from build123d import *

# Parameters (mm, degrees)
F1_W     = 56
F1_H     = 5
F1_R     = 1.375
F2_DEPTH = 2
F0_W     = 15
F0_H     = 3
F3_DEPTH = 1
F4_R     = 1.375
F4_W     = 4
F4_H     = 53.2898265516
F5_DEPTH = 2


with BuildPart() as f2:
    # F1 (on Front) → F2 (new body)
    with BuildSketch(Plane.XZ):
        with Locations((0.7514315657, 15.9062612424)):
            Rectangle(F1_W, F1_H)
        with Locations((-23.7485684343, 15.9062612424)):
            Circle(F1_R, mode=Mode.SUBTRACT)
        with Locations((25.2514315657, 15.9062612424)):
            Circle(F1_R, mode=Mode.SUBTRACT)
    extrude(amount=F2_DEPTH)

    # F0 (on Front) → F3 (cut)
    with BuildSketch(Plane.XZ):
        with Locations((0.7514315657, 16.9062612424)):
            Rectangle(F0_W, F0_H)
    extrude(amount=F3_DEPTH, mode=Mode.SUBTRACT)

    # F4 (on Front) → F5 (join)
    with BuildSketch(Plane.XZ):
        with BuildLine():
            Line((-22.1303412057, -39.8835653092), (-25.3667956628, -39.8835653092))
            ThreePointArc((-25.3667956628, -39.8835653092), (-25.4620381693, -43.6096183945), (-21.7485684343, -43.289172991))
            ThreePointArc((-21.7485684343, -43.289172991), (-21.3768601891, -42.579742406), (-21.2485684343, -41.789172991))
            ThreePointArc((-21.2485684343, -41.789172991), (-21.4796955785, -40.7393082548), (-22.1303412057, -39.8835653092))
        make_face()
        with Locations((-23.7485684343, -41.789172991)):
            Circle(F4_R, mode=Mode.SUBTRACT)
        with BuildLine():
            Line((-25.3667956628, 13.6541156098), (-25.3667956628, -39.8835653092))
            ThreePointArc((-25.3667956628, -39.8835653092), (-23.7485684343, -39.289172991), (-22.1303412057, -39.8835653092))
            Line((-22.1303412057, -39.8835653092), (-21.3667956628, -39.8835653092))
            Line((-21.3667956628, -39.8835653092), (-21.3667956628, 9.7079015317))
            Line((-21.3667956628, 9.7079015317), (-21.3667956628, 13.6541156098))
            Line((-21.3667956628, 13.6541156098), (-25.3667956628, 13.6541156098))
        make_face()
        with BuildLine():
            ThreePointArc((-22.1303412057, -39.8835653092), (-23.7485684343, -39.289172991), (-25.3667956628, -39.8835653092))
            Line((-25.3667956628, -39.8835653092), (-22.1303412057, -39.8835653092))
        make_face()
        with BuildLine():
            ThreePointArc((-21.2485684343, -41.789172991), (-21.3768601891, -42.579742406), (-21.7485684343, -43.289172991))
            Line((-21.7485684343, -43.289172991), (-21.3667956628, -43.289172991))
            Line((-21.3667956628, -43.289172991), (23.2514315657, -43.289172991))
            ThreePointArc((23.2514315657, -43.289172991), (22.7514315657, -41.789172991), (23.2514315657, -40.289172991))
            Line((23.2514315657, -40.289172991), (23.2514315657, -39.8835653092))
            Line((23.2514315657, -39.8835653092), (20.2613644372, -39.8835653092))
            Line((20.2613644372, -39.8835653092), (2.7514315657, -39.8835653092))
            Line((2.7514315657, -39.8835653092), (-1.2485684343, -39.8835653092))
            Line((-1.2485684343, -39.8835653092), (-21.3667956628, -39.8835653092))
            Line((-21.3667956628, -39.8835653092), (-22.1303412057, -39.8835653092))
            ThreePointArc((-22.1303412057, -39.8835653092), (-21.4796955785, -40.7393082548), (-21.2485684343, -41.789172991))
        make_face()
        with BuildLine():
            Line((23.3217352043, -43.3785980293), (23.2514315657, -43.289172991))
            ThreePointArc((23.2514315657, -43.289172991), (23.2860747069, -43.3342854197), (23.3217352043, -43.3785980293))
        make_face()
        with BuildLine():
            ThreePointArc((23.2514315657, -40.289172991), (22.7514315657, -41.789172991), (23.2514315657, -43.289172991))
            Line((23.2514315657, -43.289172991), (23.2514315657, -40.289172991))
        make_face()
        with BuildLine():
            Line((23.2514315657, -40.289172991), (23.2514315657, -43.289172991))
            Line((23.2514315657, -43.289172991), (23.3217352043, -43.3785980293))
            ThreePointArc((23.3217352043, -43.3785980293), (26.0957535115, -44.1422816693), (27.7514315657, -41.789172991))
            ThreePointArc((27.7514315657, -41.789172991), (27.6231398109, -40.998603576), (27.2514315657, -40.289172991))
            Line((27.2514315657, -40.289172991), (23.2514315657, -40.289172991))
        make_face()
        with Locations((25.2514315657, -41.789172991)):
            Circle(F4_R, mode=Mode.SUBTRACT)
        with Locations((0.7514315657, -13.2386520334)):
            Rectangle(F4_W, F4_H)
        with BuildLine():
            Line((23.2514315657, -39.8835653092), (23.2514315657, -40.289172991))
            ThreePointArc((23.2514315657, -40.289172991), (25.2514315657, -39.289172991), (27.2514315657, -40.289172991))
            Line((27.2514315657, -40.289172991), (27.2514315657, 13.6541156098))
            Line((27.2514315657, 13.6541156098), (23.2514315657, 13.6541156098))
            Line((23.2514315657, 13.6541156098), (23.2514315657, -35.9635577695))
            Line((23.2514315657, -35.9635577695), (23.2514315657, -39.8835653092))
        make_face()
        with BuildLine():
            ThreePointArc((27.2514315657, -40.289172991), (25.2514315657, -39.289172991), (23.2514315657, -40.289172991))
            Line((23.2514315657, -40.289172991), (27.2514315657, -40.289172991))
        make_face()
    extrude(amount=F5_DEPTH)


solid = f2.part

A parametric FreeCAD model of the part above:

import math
import FreeCAD as App
import Part
import Sketcher


def add_polygon(sketch, points):
    """Adds a closed chain of lines whose ends are joined by coincident constraints."""
    first, n = sketch.GeometryCount, len(points)
    for a, b in zip(points, points[1:] + points[:1]):
        sketch.addGeometry(Part.LineSegment(App.Vector(*a, 0), App.Vector(*b, 0)), False)
    for i in range(n):
        sketch.addConstraint(Sketcher.Constraint("Coincident", first + i, 2, first + (i + 1) % n, 1))

doc = App.newDocument("Part")
body = doc.addObject("PartDesign::Body", "Body")

# Sketch on XZ plane
sketch1 = body.newObject("Sketcher::SketchObject", "Sketch")
sketch1.AttachmentSupport = (doc.getObject("XZ_Plane"), [""])
sketch1.MapMode = "FlatFace"
add_polygon(sketch1, [(-27.248568, 18.406261), (-27.248568, 13.406261), (28.751432, 13.406261), (28.751432, 18.406261)])  # lines 0-3
sketch1.addGeometry(Part.Circle(App.Vector(-23.748568, 15.906261, 0), App.Vector(0, 0, 1), 1.375), False)  # 4
sketch1.addGeometry(Part.Circle(App.Vector(25.251432, 15.906261, 0), App.Vector(0, 0, 1), 1.375), False)  # 5
sketch1.addConstraint([
    Sketcher.Constraint("Vertical", 0),
    Sketcher.Constraint("Horizontal", 1),
    Sketcher.Constraint("Vertical", 2),
    Sketcher.Constraint("Horizontal", 3),
    Sketcher.Constraint("Equal", 4, 5),
    Sketcher.Constraint("Horizontal", 4, 3, 5, 3),
    Sketcher.Constraint("Diameter", 4, 2.75),
    Sketcher.Constraint("DistanceX", 1, 1, 1, 2, 56.0),
    Sketcher.Constraint("DistanceY", 0, 2, 0, 1, 5.0),
    Sketcher.Constraint("DistanceX", 4, 3, 5, 3, 49.0),
    Sketcher.Constraint("DistanceX", 0, 2, 4, 3, 3.5),
    Sketcher.Constraint("DistanceY", 0, 2, 4, 3, 2.5),
    Sketcher.Constraint("DistanceX", 4, 3, -1, 1, 23.748568),
    Sketcher.Constraint("DistanceY", -1, 1, 4, 3, 15.906261),
])
pad1 = body.newObject("PartDesign::Pad", "Pad")
pad1.Profile = sketch1
pad1.Length = 2

# Sketch on XZ plane
sketch2 = body.newObject("Sketcher::SketchObject", "Sketch001")
sketch2.AttachmentSupport = (doc.getObject("XZ_Plane"), [""])
sketch2.MapMode = "FlatFace"
add_polygon(sketch2, [(-6.748568, 18.406261), (-6.748568, 15.406261), (8.251432, 15.406261), (8.251432, 18.406261)])  # lines 0-3
sketch2.addConstraint([
    Sketcher.Constraint("Vertical", 0),
    Sketcher.Constraint("Horizontal", 1),
    Sketcher.Constraint("Vertical", 2),
    Sketcher.Constraint("Horizontal", 3),
    Sketcher.Constraint("DistanceX", 1, 1, 1, 2, 15.0),
    Sketcher.Constraint("DistanceY", 0, 2, 0, 1, 3.0),
    Sketcher.Constraint("DistanceX", 0, 2, -1, 1, 6.748568),
    Sketcher.Constraint("DistanceY", -1, 1, 0, 2, 15.406261),
])
pocket1 = body.newObject("PartDesign::Pocket", "Pocket")
pocket1.Profile = sketch2
pocket1.Length = 1
pocket1.Reversed = True

# Sketch on XZ plane
sketch3 = body.newObject("Sketcher::SketchObject", "Sketch002")
sketch3.AttachmentSupport = (doc.getObject("XZ_Plane"), [""])
sketch3.MapMode = "FlatFace"
sketch3.addGeometry([
    Part.ArcOfCircle(Part.Circle(App.Vector(25.251432, -41.789173, 0), App.Vector(0, 0, 1), 2.5), math.radians(0), math.radians(36.869898)),  # 0
    Part.LineSegment(App.Vector(27.251432, -40.289173, 0), App.Vector(27.251432, 13.654116, 0)),  # 1
    Part.LineSegment(App.Vector(27.251432, 13.654116, 0), App.Vector(23.251432, 13.654116, 0)),  # 2
    Part.LineSegment(App.Vector(23.251432, 13.654116, 0), App.Vector(23.251432, -39.883565, 0)),  # 3
    Part.LineSegment(App.Vector(23.251432, -39.883565, 0), App.Vector(2.751432, -39.883565, 0)),  # 4
    Part.LineSegment(App.Vector(2.751432, -39.883565, 0), App.Vector(2.751432, 13.406261, 0)),  # 5
    Part.LineSegment(App.Vector(2.751432, 13.406261, 0), App.Vector(-1.248568, 13.406261, 0)),  # 6
    Part.LineSegment(App.Vector(-1.248568, 13.406261, 0), App.Vector(-1.248568, -39.883565, 0)),  # 7
    Part.LineSegment(App.Vector(-1.248568, -39.883565, 0), App.Vector(-21.366796, -39.883565, 0)),  # 8
    Part.LineSegment(App.Vector(-21.366796, -39.883565, 0), App.Vector(-21.366796, 13.654116, 0)),  # 9
    Part.LineSegment(App.Vector(-21.366796, 13.654116, 0), App.Vector(-25.366796, 13.654116, 0)),  # 10
    Part.LineSegment(App.Vector(-25.366796, 13.654116, 0), App.Vector(-25.366796, -39.883565, 0)),  # 11
    Part.ArcOfCircle(Part.Circle(App.Vector(-23.748568, -41.789173, 0), App.Vector(0, 0, 1), 2.5), math.radians(130.337657), math.radians(323.130102)),  # 12
    Part.LineSegment(App.Vector(-21.748568, -43.289173, 0), App.Vector(23.251432, -43.289173, 0)),  # 13
    Part.ArcOfCircle(Part.Circle(App.Vector(25.251432, -41.789173, 0), App.Vector(0, 0, 1), 2.5), math.radians(-143.130102), math.radians(-140.522881)),  # 14
    Part.ArcOfCircle(Part.Circle(App.Vector(25.251432, -41.789173, 0), App.Vector(0, 0, 1), 2.5), math.radians(-140.522882), math.radians(0)),  # 15
    Part.Circle(App.Vector(-23.748568, -41.789173, 0), App.Vector(0, 0, 1), 1.375),  # 16
    Part.Circle(App.Vector(25.251432, -41.789173, 0), App.Vector(0, 0, 1), 1.375),  # 17
], False)
sketch3.addConstraint([
    Sketcher.Constraint("Coincident", 0, 2, 1, 1),
    Sketcher.Constraint("Coincident", 1, 2, 2, 1),
    Sketcher.Constraint("Coincident", 2, 2, 3, 1),
    Sketcher.Constraint("Coincident", 3, 2, 4, 1),
    Sketcher.Constraint("Coincident", 4, 2, 5, 1),
    Sketcher.Constraint("Coincident", 5, 2, 6, 1),
    Sketcher.Constraint("Coincident", 6, 2, 7, 1),
    Sketcher.Constraint("Coincident", 7, 2, 8, 1),
    Sketcher.Constraint("Coincident", 8, 2, 9, 1),
    Sketcher.Constraint("Coincident", 9, 2, 10, 1),
    Sketcher.Constraint("Coincident", 10, 2, 11, 1),
    Sketcher.Constraint("Coincident", 11, 2, 12, 1),
    Sketcher.Constraint("Coincident", 12, 2, 13, 1),
    Sketcher.Constraint("Coincident", 13, 2, 14, 1),
    Sketcher.Constraint("Tangent", 14, 2, 15, 1),
    Sketcher.Constraint("Tangent", 15, 2, 0, 1),
    Sketcher.Constraint("Vertical", 1),
    Sketcher.Constraint("Horizontal", 2),
    Sketcher.Constraint("Vertical", 3),
    Sketcher.Constraint("Horizontal", 4),
    Sketcher.Constraint("Vertical", 5),
    Sketcher.Constraint("Horizontal", 6),
    Sketcher.Constraint("Vertical", 7),
    Sketcher.Constraint("Horizontal", 8),
    Sketcher.Constraint("Vertical", 9),
    Sketcher.Constraint("Horizontal", 10),
    Sketcher.Constraint("Vertical", 11),
    Sketcher.Constraint("Horizontal", 13),
    Sketcher.Constraint("Coincident", 14, 3, 0, 3),
    Sketcher.Constraint("Coincident", 16, 3, 12, 3),
    Sketcher.Constraint("Coincident", 17, 3, 0, 3),
    Sketcher.Constraint("Equal", 0, 12),
    Sketcher.Constraint("Equal", 16, 17),
    Sketcher.Constraint("Horizontal", 0, 3, 12, 3),
    Sketcher.Constraint("Horizontal", 4, 2, 7, 2),
    Sketcher.Constraint("Horizontal", 2, 2, 9, 2),
    Sketcher.Constraint("Horizontal", 8, 2, 11, 2),
    Sketcher.Constraint("Horizontal", 17, 3, 15, 2),
    Sketcher.Constraint("Vertical", 3, 2, 13, 2),
    Sketcher.Constraint("Equal", 2, 6),
    Sketcher.Constraint("Equal", 6, 10),
    Sketcher.Constraint("Radius", 0, 2.5),
    Sketcher.Constraint("Diameter", 16, 2.75),
    Sketcher.Constraint("DistanceX", 2, 2, 2, 1, 4.0),
    Sketcher.Constraint("DistanceX", 13, 1, 13, 2, 45.0),
    Sketcher.Constraint("DistanceX", 4, 2, 4, 1, 20.5),
    Sketcher.Constraint("DistanceX", 12, 3, 0, 3, 49.0),
    Sketcher.Constraint("DistanceY", 1, 1, 1, 2, 53.943289),
    Sketcher.Constraint("DistanceY", 3, 2, 3, 1, 53.537681),
    Sketcher.Constraint("DistanceY", 14, 2, -1, 1, 43.378598),
    Sketcher.Constraint("DistanceY", 5, 1, 5, 2, 53.289827),
    Sketcher.Constraint("DistanceX", -1, 1, 0, 3, 25.251432),
    Sketcher.Constraint("DistanceY", -1, 1, 5, 2, 13.406261),
])
pad2 = body.newObject("PartDesign::Pad", "Pad001")
pad2.Profile = sketch3
pad2.Length = 2

doc.recompute()
